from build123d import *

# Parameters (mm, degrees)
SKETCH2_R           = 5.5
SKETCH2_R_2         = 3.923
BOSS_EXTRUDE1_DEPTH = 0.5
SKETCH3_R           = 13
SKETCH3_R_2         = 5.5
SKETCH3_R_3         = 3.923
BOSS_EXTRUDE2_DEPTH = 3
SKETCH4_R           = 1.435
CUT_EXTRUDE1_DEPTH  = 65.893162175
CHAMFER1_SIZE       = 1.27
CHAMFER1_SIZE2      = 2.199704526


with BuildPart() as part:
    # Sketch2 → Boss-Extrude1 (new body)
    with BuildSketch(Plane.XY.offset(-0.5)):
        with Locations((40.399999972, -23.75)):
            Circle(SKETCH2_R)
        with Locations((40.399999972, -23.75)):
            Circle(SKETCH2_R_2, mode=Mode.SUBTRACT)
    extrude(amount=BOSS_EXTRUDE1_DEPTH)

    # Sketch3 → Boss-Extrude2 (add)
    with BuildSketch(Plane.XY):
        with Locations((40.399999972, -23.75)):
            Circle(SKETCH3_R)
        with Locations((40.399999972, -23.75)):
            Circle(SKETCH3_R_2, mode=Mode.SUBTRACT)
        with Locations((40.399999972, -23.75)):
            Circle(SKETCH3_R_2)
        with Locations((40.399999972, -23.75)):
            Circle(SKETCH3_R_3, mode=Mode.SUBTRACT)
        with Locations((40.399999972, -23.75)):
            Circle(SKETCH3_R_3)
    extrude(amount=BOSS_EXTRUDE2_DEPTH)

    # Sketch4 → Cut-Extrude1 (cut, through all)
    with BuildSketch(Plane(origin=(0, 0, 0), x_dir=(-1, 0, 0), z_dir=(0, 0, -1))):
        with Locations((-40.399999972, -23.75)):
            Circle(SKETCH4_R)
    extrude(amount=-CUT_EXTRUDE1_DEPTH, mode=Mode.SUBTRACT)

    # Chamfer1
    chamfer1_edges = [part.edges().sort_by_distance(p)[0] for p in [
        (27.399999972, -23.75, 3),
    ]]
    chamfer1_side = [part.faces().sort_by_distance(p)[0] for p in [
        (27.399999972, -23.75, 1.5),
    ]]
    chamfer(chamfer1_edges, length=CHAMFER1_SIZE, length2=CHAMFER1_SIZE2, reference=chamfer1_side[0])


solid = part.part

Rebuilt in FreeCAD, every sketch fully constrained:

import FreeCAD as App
import Part
import Sketcher

V = App.Vector


def edges_at(feature, points):
    """Names of the edges that pass closest to the given points."""
    edges = feature.Shape.Edges
    near = lambda p: min(range(len(edges)), key=lambda i: edges[i].distToShape(Part.Vertex(*p))[0])
    return sorted({f"Edge{near(p) + 1}" for p in points})

doc = App.newDocument("Part")
body = doc.addObject("PartDesign::Body", "Body")

# Sketch on XY plane
sketch1 = body.newObject("Sketcher::SketchObject", "Sketch")
sketch1.AttachmentSupport = (doc.getObject("XY_Plane"), [""])
sketch1.MapMode = "FlatFace"
sketch1.AttachmentOffset = App.Placement(V(0, 0, -0.5), App.Rotation())
sketch1.addGeometry(Part.Circle(V(40.4, -23.75, 0), V(0, 0, 1), 5.5), False)
sketch1.addGeometry(Part.Circle(V(40.4, -23.75, 0), V(0, 0, 1), 3.923), False)
sketch1.addConstraint(Sketcher.Constraint("Coincident", 1, 3, 0, 3))
sketch1.addConstraint(Sketcher.Constraint("Diameter", 0, 11.0))
sketch1.addConstraint(Sketcher.Constraint("Diameter", 1, 7.846))
sketch1.addConstraint(Sketcher.Constraint("DistanceX", -1, 1, 0, 3, 40.4))
sketch1.addConstraint(Sketcher.Constraint("DistanceY", 0, 3, -1, 1, 23.75))
pad1 = body.newObject("PartDesign::Pad", "Pad")
pad1.Profile = sketch1
pad1.Length = 0.5

# Sketch on XY plane
sketch2 = body.newObject("Sketcher::SketchObject", "Sketch001")
sketch2.AttachmentSupport = (doc.getObject("XY_Plane"), [""])
sketch2.MapMode = "FlatFace"
sketch2.addGeometry(Part.Circle(V(40.4, -23.75, 0), V(0, 0, 1), 13), False)
sketch2.addConstraint(Sketcher.Constraint("Diameter", 0, 26.0))
sketch2.addConstraint(Sketcher.Constraint("DistanceX", -1, 1, 0, 3, 40.4))
sketch2.addConstraint(Sketcher.Constraint("DistanceY", 0, 3, -1, 1, 23.75))
pad2 = body.newObject("PartDesign::Pad", "Pad001")
pad2.Profile = sketch2
pad2.Length = 3

# Sketch on XY plane
sketch3 = body.newObject("Sketcher::SketchObject", "Sketch002")
sketch3.AttachmentSupport = (doc.getObject("XY_Plane"), [""])
sketch3.MapMode = "FlatFace"
sketch3.addGeometry(Part.Circle(V(40.4, -23.75, 0), V(0, 0, 1), 1.435), False)
sketch3.addConstraint(Sketcher.Constraint("Diameter", 0, 2.87))
sketch3.addConstraint(Sketcher.Constraint("DistanceX", -1, 1, 0, 3, 40.4))
sketch3.addConstraint(Sketcher.Constraint("DistanceY", 0, 3, -1, 1, 23.75))
pocket1 = body.newObject("PartDesign::Pocket", "Pocket")
pocket1.Profile = sketch3
pocket1.Type = "ThroughAll"
pocket1.Reversed = True
doc.recompute()

chamfer = body.newObject("PartDesign::Chamfer", "Chamfer")
chamfer.Base = (pocket1, edges_at(pocket1, [(27.4, -23.75, 3)]))
chamfer.ChamferType = "Two distances"
chamfer.Size = 1.27
chamfer.Size2 = 2.199705

doc.recompute()
